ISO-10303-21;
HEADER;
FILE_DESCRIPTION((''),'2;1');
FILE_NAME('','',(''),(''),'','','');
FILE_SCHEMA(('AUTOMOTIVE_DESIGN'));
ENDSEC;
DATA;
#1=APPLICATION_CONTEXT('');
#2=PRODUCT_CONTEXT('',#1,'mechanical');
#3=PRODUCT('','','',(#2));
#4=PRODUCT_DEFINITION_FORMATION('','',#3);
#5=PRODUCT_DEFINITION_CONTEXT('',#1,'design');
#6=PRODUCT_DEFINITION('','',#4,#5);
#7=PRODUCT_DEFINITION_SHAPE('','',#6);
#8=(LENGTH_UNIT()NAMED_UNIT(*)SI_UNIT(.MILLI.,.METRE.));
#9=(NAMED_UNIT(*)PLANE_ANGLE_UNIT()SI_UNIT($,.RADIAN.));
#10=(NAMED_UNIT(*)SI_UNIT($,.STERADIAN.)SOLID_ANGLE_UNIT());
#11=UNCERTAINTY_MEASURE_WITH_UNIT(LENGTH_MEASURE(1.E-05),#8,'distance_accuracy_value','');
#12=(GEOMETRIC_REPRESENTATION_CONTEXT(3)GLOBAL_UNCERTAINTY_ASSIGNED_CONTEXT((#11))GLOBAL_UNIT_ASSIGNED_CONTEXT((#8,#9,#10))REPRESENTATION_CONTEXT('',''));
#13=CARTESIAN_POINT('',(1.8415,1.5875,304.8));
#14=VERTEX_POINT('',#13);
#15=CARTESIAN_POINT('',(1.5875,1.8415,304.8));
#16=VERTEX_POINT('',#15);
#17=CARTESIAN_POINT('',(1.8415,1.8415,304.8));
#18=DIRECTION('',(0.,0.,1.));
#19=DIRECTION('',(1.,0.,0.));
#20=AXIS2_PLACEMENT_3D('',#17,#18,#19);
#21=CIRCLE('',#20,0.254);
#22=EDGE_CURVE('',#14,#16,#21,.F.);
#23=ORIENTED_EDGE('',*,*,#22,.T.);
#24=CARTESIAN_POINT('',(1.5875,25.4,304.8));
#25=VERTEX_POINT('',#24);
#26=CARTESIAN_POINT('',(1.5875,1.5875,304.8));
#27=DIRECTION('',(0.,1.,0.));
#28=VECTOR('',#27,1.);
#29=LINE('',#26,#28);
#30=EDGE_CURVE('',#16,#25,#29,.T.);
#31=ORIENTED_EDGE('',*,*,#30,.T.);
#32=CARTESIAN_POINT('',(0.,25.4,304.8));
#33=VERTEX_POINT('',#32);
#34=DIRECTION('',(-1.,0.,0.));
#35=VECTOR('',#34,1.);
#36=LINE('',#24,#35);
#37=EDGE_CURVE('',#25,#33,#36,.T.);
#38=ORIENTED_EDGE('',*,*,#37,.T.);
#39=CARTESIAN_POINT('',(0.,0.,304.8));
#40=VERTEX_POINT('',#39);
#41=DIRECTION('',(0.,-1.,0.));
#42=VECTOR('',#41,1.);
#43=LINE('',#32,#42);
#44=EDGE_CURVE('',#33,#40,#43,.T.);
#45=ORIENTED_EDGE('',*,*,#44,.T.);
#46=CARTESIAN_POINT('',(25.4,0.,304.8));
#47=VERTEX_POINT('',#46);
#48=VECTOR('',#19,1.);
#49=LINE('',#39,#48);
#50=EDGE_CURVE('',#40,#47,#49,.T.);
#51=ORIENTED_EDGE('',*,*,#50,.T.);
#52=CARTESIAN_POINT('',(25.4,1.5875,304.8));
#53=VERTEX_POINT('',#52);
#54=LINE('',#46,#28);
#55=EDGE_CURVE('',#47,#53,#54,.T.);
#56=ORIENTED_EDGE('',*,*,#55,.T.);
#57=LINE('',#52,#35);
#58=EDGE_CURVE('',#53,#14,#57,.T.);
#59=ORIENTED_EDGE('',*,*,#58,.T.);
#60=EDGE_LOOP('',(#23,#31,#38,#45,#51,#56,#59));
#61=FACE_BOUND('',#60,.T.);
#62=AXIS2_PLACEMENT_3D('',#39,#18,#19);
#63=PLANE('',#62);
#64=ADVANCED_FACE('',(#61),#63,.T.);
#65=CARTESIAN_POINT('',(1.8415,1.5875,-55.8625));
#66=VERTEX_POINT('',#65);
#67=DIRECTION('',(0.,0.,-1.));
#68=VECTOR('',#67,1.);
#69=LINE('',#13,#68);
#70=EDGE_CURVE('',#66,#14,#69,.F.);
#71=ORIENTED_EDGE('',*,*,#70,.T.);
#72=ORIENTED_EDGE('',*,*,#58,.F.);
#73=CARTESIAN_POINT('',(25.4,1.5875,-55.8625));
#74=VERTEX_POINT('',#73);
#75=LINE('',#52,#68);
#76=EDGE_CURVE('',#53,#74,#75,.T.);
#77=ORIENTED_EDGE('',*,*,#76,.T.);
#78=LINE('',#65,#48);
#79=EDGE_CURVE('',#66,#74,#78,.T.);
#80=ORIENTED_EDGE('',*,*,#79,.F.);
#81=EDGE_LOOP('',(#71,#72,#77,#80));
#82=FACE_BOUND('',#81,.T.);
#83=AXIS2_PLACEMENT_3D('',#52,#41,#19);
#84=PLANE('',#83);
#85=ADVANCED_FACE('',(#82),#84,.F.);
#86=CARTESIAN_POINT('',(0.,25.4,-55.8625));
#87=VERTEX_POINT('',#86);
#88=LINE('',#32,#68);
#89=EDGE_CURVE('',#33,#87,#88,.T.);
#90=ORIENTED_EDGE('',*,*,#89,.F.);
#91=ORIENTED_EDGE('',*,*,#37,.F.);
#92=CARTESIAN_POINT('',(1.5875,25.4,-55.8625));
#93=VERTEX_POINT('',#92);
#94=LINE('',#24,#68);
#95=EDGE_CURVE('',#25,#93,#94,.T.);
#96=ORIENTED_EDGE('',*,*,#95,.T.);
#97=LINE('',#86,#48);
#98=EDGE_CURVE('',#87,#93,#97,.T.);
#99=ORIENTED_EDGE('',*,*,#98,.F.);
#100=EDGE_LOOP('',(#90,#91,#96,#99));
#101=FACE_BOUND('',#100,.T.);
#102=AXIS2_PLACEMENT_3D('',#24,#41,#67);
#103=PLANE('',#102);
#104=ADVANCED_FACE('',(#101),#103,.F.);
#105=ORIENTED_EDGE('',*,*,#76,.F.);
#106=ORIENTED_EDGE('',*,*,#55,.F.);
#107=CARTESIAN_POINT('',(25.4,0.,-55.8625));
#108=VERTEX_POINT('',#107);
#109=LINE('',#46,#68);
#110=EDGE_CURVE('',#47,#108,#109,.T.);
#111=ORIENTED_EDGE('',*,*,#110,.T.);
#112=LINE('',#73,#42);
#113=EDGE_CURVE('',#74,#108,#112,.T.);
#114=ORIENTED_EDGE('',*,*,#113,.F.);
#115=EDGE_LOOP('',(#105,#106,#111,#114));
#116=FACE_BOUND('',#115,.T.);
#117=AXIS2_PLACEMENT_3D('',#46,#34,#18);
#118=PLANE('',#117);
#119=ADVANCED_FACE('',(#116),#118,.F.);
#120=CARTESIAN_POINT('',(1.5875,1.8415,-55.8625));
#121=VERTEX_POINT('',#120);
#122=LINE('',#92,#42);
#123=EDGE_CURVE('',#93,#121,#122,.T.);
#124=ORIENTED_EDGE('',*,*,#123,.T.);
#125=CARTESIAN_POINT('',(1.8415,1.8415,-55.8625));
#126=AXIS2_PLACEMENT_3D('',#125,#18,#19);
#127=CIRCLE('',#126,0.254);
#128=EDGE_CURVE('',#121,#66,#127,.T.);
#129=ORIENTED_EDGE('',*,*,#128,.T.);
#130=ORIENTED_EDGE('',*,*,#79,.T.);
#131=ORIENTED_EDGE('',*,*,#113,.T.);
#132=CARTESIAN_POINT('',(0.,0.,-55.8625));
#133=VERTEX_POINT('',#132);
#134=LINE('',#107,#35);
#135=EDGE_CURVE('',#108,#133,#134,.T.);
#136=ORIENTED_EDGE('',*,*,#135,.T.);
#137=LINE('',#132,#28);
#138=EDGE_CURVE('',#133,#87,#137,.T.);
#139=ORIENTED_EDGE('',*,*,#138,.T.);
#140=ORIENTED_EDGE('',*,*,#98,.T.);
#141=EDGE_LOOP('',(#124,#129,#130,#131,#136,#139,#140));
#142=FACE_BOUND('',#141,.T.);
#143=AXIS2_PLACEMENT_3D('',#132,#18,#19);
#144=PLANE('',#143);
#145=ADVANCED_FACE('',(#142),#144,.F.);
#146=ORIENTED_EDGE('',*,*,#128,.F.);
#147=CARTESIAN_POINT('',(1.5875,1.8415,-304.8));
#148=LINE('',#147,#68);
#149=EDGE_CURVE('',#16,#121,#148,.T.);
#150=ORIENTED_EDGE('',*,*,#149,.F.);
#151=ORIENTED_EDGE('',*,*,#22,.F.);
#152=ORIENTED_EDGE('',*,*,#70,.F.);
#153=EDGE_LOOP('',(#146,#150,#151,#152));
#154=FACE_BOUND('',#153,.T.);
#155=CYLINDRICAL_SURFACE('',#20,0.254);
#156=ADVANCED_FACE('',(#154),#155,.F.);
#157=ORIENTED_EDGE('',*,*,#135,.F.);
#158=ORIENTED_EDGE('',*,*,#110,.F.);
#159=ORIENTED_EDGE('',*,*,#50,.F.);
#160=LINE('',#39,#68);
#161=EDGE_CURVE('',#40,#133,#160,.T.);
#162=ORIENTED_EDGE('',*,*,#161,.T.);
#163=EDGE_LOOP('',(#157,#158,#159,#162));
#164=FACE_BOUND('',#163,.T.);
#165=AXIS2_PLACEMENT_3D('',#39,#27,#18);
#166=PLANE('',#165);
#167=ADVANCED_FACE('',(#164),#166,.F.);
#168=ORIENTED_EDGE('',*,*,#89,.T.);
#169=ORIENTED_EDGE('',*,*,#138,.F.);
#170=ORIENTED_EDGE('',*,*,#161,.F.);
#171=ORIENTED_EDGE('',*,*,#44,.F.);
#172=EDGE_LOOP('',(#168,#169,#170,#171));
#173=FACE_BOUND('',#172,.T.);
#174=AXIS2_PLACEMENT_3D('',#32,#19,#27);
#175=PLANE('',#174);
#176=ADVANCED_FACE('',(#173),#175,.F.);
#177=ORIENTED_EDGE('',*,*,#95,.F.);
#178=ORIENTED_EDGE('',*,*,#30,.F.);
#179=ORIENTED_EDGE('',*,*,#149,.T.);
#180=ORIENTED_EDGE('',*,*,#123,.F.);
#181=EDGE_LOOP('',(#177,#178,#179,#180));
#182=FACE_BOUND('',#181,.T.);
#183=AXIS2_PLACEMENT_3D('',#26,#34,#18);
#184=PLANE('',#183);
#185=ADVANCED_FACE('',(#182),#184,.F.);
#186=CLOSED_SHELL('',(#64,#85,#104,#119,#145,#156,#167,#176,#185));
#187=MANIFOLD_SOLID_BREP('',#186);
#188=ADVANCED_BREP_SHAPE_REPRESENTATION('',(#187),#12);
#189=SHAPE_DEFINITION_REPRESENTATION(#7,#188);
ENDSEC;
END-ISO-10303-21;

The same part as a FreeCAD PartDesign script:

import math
import FreeCAD as App
import Part
import Sketcher
Q = App.Units.Quantity


def edges_at(feature, points):
    """Names of the edges that pass closest to the given points."""
    edges = feature.Shape.Edges
    near = lambda p: min(range(len(edges)), key=lambda i: edges[i].distToShape(Part.Vertex(*p))[0])
    return sorted({f"Edge{near(p) + 1}" for p in points})

doc = App.newDocument("Part")
body = doc.addObject("PartDesign::Body", "Body")

sketch1 = body.newObject("Sketcher::SketchObject", "Sketch")
sketch1.AttachmentSupport = (doc.getObject("XY_Plane"), [""])
sketch1.MapMode = "FlatFace"
sketch1.addGeometry(Part.LineSegment(App.Vector(1.5875, 25.4, 0), App.Vector(0, 25.4, 0)), False)
sketch1.addGeometry(Part.LineSegment(App.Vector(0, 25.4, 0), App.Vector(0, 0, 0)), False)
sketch1.addGeometry(Part.LineSegment(App.Vector(0, 0, 0), App.Vector(25.4, 0, 0)), False)
sketch1.addGeometry(Part.LineSegment(App.Vector(25.4, 0, 0), App.Vector(25.4, 1.5875, 0)), False)
sketch1.addGeometry(Part.LineSegment(App.Vector(25.4, 1.5875, 0), App.Vector(1.5875, 1.5875, 0)), False)
sketch1.addGeometry(Part.LineSegment(App.Vector(1.5875, 1.5875, 0), App.Vector(1.5875, 25.4, 0)), False)
sketch1.addConstraint(Sketcher.Constraint("Coincident", 0, 2, 1, 1))
sketch1.addConstraint(Sketcher.Constraint("Coincident", 1, 2, 2, 1))
sketch1.addConstraint(Sketcher.Constraint("Coincident", 2, 2, 3, 1))
sketch1.addConstraint(Sketcher.Constraint("Coincident", 3, 2, 4, 1))
sketch1.addConstraint(Sketcher.Constraint("Coincident", 4, 2, 5, 1))
sketch1.addConstraint(Sketcher.Constraint("Coincident", 5, 2, 0, 1))
sketch1.addConstraint(Sketcher.Constraint("Horizontal", 0))
sketch1.addConstraint(Sketcher.Constraint("Vertical", 1))
sketch1.addConstraint(Sketcher.Constraint("Horizontal", 2))
sketch1.addConstraint(Sketcher.Constraint("Vertical", 3))
sketch1.addConstraint(Sketcher.Constraint("Horizontal", 4))
sketch1.addConstraint(Sketcher.Constraint("Vertical", 5))
sketch1.addConstraint(Sketcher.Constraint("Coincident", 1, 2, -1, 1))
sketch1.addConstraint(Sketcher.Constraint("Equal", 2, 1))
sketch1.addConstraint(Sketcher.Constraint("Equal", 0, 3))
sketch1.addConstraint(Sketcher.Constraint("DistanceX", 2, 1, 2, 2, Q("1 in")))
sketch1.addConstraint(Sketcher.Constraint("DistanceX", 0, 2, 0, 1, Q("0.0625 in")))
pad1 = body.newObject("PartDesign::Pad", "Pad")
pad1.Profile = sketch1
pad1.Length = Q("24 in")
pad1.Midplane = True
doc.recompute()

fillet = body.newObject("PartDesign::Fillet", "Fillet")
fillet.Base = (pad1, edges_at(pad1, [(1.587, 1.587, 0)]))
fillet.Radius = Q("0.01 in")

sketch2 = body.newObject("Sketcher::SketchObject", "Sketch001")
sketch2.AttachmentSupport = (doc.getObject("XY_Plane"), [""])
sketch2.MapMode = "FlatFace"
sketch2.AttachmentOffset = App.Placement(App.Vector(0, 0, -12 * 25.4), App.Rotation())
sketch2.addGeometry(Part.LineSegment(App.Vector(1.5875, 25.4, 0), App.Vector(1.5875, 1.8415, 0)), False)
sketch2.addGeometry(Part.ArcOfCircle(Part.Circle(App.Vector(1.8415, 1.8415, 0), App.Vector(0, 0, 1), 0.254), math.radians(-180), math.radians(-90)), False)
sketch2.addGeometry(Part.LineSegment(App.Vector(1.8415, 1.5875, 0), App.Vector(25.4, 1.5875, 0)), False)
sketch2.addGeometry(Part.LineSegment(App.Vector(25.4, 1.5875, 0), App.Vector(25.4, 0, 0)), False)
sketch2.addGeometry(Part.LineSegment(App.Vector(25.4, 0, 0), App.Vector(0, 0, 0)), False)
sketch2.addGeometry(Part.LineSegment(App.Vector(0, 0, 0), App.Vector(0, 25.4, 0)), False)
sketch2.addGeometry(Part.LineSegment(App.Vector(0, 25.4, 0), App.Vector(1.5875, 25.4, 0)), False)
sketch2.addConstraint(Sketcher.Constraint("Tangent", 0, 2, 1, 1))
sketch2.addConstraint(Sketcher.Constraint("Tangent", 1, 2, 2, 1))
sketch2.addConstraint(Sketcher.Constraint("Coincident", 2, 2, 3, 1))
sketch2.addConstraint(Sketcher.Constraint("Coincident", 3, 2, 4, 1))
sketch2.addConstraint(Sketcher.Constraint("Coincident", 4, 2, 5, 1))
sketch2.addConstraint(Sketcher.Constraint("Coincident", 5, 2, 6, 1))
sketch2.addConstraint(Sketcher.Constraint("Coincident", 6, 2, 0, 1))
sketch2.addConstraint(Sketcher.Constraint("Vertical", 0))
sketch2.addConstraint(Sketcher.Constraint("Horizontal", 2))
sketch2.addConstraint(Sketcher.Constraint("Vertical", 3))
sketch2.addConstraint(Sketcher.Constraint("Horizontal", 4))
sketch2.addConstraint(Sketcher.Constraint("Vertical", 5))
sketch2.addConstraint(Sketcher.Constraint("Horizontal", 6))
sketch2.addConstraint(Sketcher.Constraint("Coincident", 4, 2, -1, 1))
sketch2.addConstraint(Sketcher.Constraint("Equal", 2, 0))
sketch2.addConstraint(Sketcher.Constraint("Equal", 6, 3))
sketch2.addConstraint(Sketcher.Constraint("DistanceX", 4, 2, 4, 1, Q("1 in")))
sketch2.addConstraint(Sketcher.Constraint("Radius", 1, Q("0.01 in")))
sketch2.addConstraint(Sketcher.Constraint("DistanceX", 6, 1, 6, 2, Q("0.0625 in")))
pocket1 = body.newObject("PartDesign::Pocket", "Pocket")
pocket1.Profile = sketch2
pocket1.Length = 248.9375
pocket1.Reversed = True

doc.recompute()
